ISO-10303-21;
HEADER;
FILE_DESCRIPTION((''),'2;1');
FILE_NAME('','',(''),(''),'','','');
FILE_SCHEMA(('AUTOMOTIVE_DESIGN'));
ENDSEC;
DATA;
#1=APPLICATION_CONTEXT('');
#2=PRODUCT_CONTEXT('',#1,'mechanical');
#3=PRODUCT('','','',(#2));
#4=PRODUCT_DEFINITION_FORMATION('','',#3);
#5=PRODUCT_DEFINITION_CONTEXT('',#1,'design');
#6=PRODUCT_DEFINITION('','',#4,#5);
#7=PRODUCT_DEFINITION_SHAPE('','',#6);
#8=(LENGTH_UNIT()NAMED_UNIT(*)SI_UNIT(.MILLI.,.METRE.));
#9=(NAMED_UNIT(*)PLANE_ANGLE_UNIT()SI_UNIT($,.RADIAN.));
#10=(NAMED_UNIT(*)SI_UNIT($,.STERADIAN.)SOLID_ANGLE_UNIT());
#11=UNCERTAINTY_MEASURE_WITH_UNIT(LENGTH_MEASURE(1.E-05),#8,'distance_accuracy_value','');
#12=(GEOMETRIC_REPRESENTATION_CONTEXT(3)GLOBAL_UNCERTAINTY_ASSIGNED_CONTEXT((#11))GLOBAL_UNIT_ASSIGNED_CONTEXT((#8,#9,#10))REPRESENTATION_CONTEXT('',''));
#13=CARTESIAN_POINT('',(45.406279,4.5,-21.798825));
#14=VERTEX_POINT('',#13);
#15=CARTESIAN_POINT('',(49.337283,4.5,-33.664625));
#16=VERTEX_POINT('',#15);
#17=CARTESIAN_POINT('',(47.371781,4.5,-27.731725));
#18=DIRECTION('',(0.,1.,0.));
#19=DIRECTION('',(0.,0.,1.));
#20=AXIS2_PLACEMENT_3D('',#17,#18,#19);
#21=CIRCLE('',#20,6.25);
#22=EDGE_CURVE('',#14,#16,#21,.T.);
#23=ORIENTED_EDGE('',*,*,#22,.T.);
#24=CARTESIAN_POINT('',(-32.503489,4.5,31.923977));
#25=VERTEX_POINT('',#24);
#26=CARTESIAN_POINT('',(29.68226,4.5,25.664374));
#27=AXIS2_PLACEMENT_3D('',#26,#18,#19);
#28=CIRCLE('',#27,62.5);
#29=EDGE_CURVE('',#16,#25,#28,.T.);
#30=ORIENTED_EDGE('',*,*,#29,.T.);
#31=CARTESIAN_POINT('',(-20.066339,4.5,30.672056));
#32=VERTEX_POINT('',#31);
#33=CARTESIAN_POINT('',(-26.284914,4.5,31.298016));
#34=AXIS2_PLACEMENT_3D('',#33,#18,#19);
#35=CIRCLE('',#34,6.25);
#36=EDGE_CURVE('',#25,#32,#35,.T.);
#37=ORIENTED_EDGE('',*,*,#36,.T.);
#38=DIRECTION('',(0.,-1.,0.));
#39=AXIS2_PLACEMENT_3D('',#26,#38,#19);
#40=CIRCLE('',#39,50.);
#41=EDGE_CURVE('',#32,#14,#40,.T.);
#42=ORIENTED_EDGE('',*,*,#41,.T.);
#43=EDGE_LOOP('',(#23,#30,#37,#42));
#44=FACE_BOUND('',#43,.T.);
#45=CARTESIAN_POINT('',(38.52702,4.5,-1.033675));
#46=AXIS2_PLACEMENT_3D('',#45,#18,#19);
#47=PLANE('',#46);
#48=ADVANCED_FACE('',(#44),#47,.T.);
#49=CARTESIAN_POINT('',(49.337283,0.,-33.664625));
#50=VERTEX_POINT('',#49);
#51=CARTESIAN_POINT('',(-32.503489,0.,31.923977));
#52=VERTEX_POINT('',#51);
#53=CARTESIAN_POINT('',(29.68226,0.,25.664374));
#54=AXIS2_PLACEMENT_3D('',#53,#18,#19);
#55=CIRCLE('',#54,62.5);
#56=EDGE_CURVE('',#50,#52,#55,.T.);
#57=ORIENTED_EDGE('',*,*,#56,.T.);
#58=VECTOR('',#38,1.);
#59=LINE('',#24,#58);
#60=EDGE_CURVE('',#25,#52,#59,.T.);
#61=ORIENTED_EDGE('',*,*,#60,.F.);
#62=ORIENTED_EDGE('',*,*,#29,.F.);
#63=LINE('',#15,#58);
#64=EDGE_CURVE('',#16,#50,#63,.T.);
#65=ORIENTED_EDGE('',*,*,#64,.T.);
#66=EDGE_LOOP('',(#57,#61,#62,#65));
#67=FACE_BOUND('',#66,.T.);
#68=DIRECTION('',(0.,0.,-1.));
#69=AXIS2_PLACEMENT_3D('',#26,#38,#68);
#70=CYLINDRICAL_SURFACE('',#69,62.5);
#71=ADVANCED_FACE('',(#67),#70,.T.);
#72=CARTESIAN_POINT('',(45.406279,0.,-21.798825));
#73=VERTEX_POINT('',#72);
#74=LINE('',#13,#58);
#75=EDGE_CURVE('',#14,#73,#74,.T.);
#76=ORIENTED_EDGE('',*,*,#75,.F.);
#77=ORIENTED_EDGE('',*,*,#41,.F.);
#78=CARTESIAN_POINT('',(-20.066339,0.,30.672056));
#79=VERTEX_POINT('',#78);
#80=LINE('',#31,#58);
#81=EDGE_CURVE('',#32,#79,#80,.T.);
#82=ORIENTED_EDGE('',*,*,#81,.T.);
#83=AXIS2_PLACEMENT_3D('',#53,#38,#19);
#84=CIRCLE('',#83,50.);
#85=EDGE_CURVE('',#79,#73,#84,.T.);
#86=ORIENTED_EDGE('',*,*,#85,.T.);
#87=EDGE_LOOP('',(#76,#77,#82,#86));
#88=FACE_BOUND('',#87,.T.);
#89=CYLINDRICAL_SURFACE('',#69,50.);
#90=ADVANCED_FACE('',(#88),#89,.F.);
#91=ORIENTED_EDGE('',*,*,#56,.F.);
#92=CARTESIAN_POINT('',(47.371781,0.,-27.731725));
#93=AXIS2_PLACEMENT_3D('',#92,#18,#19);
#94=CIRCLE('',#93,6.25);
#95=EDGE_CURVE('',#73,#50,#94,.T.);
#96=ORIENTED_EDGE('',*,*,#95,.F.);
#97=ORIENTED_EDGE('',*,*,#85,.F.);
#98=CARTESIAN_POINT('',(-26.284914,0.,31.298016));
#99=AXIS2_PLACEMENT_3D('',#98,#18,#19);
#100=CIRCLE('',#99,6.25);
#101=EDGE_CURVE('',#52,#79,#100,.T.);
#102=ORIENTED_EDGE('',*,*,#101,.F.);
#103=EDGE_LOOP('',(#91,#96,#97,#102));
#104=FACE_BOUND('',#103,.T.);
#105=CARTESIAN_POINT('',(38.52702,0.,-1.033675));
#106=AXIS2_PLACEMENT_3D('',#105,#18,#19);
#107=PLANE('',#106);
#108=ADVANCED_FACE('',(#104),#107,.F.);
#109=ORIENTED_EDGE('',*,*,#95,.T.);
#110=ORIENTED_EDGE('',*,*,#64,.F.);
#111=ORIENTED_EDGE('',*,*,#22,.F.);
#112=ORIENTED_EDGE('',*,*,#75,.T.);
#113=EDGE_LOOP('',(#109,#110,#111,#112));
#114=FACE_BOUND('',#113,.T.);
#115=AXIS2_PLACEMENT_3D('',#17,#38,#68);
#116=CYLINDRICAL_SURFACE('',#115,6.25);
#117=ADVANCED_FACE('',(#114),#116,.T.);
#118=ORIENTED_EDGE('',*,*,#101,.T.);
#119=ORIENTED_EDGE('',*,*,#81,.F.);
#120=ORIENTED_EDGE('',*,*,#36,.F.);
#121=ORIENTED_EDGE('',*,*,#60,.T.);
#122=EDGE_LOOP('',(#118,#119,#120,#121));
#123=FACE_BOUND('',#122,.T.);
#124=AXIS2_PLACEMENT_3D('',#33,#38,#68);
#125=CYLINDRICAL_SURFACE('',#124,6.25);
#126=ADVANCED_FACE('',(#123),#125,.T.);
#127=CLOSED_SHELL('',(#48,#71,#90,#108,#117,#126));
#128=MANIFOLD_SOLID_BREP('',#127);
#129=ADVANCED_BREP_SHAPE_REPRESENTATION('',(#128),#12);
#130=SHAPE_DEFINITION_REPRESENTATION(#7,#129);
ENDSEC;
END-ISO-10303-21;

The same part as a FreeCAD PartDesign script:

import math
import FreeCAD as App
import Part
import Sketcher

doc = App.newDocument("Part")
body = doc.addObject("PartDesign::Body", "Body")

# Sketch on XZ plane
sketch1 = body.newObject("Sketcher::SketchObject", "Sketch")
sketch1.AttachmentSupport = (doc.getObject("XZ_Plane"), [""])
sketch1.MapMode = "FlatFace"
sketch1.addGeometry(Part.ArcOfCircle(Part.Circle(App.Vector(30, 26, 0), App.Vector(0, 0, 1), 62), math.radians(174), math.radians(288)), False)
sketch1.addGeometry(Part.ArcOfCircle(Part.Circle(App.Vector(-26, 31, 0), App.Vector(0, 0, 1), 6), math.radians(-6), math.radians(174)), False)
sketch1.addGeometry(Part.ArcOfCircle(Part.Circle(App.Vector(30, 26, 0), App.Vector(0, 0, 1), 50), math.radians(174), math.radians(288)), False)
sketch1.addGeometry(Part.ArcOfCircle(Part.Circle(App.Vector(47, -28, 0), App.Vector(0, 0, 1), 6), math.radians(-72), math.radians(108)), False)
sketch1.addConstraint(Sketcher.Constraint("Tangent", 0, 1, 1, 2))
sketch1.addConstraint(Sketcher.Constraint("Tangent", 1, 1, 2, 1))
sketch1.addConstraint(Sketcher.Constraint("Tangent", 2, 2, 3, 2))
sketch1.addConstraint(Sketcher.Constraint("Tangent", 3, 1, 0, 2))
sketch1.addConstraint(Sketcher.Constraint("Coincident", 2, 3, 0, 3))
sketch1.addConstraint(Sketcher.Constraint("Radius", 2, 50.0))
sketch1.addConstraint(Sketcher.Constraint("Radius", 0, 62.5))
sketch1.addConstraint(Sketcher.Constraint("DistanceY", 3, 1, 0, 3, 59.328998))
sketch1.addConstraint(Sketcher.Constraint("DistanceY", 3, 3, 0, 1, 59.655701))
sketch1.addConstraint(Sketcher.Constraint("DistanceX", -1, 1, 0, 3, 29.68226))
sketch1.addConstraint(Sketcher.Constraint("DistanceY", -1, 1, 0, 3, 25.664374))
pad1 = body.newObject("PartDesign::Pad", "Pad")
pad1.Profile = sketch1
pad1.Length = 4.5
pad1.Reversed = True

doc.recompute()
